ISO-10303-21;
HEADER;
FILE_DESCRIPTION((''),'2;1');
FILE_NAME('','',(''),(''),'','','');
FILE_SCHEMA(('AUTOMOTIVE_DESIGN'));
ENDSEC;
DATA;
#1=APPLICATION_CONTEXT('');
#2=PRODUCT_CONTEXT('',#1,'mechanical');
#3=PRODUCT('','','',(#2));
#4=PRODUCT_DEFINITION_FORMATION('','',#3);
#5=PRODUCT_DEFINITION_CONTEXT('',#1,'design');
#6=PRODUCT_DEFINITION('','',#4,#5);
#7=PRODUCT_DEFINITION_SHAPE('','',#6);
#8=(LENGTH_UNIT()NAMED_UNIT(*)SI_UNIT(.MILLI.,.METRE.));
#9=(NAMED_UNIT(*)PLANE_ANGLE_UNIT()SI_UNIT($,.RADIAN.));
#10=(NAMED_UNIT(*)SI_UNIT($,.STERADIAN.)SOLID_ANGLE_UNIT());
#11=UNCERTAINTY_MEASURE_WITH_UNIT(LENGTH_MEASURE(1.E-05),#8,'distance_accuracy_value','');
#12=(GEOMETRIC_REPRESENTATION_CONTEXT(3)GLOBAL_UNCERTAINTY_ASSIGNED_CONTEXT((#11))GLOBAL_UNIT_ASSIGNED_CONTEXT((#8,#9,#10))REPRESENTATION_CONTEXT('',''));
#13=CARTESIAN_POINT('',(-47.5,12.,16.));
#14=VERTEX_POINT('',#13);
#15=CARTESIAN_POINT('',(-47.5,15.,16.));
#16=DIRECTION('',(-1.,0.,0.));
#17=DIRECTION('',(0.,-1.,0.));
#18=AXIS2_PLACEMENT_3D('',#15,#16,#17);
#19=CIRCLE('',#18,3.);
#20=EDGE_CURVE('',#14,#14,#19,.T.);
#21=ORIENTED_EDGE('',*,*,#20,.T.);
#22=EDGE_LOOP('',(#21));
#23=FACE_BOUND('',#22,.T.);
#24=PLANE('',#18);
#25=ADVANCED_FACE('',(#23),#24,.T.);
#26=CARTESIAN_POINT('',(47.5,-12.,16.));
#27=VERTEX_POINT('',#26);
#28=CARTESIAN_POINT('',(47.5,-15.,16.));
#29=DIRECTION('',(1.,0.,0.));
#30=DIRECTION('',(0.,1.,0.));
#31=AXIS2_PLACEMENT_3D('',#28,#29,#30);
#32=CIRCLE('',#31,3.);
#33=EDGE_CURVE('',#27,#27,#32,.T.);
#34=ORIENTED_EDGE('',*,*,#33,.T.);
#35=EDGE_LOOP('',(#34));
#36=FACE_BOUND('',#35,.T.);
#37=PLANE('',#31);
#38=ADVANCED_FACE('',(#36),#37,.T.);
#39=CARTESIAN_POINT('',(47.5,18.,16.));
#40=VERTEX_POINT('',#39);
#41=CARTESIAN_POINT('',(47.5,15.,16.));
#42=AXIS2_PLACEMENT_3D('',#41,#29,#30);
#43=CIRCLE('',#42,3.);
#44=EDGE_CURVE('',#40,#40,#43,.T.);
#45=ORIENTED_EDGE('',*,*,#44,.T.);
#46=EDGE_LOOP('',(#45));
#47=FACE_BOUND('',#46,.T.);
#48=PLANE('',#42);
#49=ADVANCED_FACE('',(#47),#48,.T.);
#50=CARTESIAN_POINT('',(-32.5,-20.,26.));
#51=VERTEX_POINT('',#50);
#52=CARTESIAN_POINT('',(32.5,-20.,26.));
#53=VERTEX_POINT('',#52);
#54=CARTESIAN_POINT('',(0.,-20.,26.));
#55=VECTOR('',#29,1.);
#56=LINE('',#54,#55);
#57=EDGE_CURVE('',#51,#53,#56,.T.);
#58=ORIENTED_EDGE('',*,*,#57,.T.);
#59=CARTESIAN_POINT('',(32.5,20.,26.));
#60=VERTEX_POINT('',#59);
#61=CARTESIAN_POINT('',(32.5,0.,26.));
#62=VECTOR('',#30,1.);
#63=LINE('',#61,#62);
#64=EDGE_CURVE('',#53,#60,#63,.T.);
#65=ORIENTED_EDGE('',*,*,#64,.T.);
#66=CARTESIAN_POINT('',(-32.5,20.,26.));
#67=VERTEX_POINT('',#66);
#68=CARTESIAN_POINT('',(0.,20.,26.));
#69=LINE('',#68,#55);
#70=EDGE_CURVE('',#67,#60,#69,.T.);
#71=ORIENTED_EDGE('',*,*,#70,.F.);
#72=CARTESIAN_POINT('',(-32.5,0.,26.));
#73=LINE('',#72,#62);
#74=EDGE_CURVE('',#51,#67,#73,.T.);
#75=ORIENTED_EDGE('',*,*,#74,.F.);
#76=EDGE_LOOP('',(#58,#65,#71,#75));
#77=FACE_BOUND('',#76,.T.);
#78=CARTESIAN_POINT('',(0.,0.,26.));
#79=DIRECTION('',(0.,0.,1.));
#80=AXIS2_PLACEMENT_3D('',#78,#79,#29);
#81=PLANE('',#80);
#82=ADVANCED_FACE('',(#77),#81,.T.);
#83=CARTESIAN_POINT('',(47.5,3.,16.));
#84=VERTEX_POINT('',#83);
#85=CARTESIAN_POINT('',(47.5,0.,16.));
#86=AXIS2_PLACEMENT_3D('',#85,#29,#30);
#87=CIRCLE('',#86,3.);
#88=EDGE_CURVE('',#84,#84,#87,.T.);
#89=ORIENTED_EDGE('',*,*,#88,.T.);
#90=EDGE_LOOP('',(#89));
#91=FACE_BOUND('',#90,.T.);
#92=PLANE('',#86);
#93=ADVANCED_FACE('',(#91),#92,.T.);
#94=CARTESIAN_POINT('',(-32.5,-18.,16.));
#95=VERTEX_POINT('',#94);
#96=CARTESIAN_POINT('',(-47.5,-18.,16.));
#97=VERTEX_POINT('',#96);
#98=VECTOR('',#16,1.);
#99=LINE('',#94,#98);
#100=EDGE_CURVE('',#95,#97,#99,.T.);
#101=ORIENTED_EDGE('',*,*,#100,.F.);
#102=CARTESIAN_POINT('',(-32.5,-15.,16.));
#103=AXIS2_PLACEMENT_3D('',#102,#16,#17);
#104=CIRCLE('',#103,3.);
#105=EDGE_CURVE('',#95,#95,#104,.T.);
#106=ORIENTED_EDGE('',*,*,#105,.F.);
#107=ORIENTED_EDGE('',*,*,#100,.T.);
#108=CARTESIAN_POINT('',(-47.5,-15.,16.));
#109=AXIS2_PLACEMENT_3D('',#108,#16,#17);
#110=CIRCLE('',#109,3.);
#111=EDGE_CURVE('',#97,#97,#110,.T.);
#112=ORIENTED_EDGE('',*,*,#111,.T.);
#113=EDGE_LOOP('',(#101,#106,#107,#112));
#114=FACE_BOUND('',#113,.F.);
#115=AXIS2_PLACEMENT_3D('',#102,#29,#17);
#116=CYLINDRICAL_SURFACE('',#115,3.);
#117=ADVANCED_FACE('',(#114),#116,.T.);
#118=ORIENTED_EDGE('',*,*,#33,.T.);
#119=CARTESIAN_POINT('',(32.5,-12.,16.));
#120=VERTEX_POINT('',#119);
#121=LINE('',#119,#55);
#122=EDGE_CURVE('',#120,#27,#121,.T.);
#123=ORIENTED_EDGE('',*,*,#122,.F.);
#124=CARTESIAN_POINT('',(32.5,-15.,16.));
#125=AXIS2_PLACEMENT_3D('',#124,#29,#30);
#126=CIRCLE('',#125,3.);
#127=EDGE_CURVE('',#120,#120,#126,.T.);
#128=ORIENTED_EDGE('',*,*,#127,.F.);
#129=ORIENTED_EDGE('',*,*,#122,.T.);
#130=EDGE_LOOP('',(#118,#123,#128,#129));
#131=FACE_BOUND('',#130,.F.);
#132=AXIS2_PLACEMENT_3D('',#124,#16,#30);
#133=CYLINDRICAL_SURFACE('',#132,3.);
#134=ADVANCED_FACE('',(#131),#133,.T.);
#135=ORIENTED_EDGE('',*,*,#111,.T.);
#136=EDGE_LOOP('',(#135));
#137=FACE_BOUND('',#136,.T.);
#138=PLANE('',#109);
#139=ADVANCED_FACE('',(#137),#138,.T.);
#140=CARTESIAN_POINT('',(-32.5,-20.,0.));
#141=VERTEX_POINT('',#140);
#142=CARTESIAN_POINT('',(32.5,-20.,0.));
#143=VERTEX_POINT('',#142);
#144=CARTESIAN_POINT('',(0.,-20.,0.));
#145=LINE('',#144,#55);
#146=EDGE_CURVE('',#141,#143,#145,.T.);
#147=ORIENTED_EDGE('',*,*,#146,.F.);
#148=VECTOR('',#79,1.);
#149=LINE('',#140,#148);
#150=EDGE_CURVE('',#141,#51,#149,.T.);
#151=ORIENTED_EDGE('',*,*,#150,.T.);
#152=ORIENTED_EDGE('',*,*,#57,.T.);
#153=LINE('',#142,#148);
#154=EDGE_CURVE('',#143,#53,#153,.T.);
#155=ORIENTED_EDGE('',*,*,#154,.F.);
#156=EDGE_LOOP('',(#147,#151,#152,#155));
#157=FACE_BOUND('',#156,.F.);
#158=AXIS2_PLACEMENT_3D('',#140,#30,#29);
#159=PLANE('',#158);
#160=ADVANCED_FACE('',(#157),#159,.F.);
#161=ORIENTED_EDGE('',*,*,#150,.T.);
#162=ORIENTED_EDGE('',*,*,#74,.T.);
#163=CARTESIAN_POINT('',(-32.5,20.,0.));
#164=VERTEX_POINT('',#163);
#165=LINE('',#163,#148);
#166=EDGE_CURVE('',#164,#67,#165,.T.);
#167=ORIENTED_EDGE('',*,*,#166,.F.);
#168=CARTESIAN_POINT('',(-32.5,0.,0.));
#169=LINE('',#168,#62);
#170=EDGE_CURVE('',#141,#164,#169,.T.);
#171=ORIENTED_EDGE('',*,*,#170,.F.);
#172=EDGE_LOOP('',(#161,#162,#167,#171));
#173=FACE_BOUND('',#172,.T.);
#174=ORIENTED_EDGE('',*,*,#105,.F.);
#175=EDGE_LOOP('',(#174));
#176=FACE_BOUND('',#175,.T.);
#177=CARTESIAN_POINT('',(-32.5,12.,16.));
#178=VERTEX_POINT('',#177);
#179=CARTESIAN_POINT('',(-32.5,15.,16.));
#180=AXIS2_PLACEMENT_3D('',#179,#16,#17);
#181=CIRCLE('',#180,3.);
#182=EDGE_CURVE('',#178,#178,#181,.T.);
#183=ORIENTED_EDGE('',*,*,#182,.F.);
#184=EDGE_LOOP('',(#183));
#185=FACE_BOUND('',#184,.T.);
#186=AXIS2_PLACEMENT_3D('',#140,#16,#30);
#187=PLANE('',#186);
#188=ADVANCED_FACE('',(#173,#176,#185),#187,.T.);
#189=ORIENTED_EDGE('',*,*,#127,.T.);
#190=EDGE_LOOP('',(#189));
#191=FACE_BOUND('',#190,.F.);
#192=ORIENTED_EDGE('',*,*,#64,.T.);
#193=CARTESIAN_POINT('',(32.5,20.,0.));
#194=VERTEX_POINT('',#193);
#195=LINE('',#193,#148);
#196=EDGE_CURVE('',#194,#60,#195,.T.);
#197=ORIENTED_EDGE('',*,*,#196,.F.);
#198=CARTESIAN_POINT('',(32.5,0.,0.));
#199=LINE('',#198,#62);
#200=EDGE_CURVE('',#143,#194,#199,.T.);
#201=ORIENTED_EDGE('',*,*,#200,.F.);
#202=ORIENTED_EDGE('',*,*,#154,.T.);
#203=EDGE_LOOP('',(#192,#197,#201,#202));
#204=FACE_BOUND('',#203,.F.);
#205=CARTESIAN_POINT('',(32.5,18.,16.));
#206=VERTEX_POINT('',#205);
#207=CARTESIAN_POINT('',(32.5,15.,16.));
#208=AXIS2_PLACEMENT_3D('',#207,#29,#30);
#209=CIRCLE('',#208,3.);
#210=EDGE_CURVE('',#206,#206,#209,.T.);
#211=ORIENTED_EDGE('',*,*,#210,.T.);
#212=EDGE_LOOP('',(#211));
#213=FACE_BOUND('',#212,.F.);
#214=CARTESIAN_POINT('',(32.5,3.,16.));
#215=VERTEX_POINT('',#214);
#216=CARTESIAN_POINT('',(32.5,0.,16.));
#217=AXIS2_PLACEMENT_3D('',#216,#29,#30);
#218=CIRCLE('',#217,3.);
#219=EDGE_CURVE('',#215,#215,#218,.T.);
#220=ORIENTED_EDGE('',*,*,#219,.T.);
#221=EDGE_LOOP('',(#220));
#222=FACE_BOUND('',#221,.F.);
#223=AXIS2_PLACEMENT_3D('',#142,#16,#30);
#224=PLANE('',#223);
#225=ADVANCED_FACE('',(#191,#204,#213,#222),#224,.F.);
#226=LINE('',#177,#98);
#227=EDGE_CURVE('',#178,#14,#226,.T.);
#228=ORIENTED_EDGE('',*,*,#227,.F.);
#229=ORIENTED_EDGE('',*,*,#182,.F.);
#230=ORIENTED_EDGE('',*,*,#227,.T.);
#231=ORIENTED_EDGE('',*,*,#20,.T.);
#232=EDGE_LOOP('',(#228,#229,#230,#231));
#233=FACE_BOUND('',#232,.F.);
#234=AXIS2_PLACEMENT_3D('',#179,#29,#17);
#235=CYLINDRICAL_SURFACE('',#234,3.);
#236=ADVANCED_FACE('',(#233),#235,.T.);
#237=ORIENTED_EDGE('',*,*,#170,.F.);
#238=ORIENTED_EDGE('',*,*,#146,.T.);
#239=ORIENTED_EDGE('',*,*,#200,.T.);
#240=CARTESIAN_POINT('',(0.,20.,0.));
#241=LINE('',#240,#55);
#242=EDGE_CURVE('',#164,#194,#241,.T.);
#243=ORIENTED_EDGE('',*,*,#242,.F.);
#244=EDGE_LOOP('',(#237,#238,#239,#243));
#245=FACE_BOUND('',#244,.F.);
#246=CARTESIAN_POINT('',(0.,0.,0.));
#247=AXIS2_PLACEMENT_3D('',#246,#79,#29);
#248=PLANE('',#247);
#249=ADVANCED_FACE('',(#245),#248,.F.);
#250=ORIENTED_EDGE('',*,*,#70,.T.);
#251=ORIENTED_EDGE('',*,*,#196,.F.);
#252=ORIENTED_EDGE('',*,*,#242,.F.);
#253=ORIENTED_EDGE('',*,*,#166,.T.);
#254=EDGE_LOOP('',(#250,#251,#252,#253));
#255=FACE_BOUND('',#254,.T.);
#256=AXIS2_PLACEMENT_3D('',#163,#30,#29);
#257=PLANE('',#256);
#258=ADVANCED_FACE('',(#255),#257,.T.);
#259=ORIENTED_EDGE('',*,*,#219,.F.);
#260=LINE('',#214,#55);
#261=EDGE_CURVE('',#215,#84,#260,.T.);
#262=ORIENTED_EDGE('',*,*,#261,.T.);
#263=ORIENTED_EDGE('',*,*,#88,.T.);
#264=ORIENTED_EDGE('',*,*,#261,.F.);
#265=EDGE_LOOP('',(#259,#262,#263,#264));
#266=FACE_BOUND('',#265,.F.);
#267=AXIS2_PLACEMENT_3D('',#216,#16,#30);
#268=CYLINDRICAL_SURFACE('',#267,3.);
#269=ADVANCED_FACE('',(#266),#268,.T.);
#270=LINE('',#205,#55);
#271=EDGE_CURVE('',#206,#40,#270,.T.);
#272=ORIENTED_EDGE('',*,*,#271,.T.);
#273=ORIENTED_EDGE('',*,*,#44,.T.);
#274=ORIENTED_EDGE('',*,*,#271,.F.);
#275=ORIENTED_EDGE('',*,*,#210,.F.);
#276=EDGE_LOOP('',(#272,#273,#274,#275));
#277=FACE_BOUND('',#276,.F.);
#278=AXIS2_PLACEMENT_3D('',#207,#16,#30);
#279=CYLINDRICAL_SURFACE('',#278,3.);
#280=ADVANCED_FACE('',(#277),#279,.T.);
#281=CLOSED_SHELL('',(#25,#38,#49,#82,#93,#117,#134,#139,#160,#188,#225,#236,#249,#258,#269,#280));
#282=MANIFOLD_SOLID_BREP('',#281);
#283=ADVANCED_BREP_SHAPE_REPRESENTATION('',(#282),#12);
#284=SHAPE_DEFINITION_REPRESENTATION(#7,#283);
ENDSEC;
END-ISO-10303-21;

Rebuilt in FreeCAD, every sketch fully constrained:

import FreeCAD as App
import Part
import Sketcher


def add_polygon(sketch, points):
    """Adds a closed chain of lines whose ends are joined by coincident constraints."""
    first, n = sketch.GeometryCount, len(points)
    for a, b in zip(points, points[1:] + points[:1]):
        sketch.addGeometry(Part.LineSegment(App.Vector(*a, 0), App.Vector(*b, 0)), False)
    for i in range(n):
        sketch.addConstraint(Sketcher.Constraint("Coincident", first + i, 2, first + (i + 1) % n, 1))

doc = App.newDocument("Part")
params = doc.addObject("Spreadsheet::Sheet", "Params")
for row, (alias, value) in enumerate([
    ("sketch1_width", "65 mm"),
    ("sketch1_height", "40 mm"),
    ("pad1_length", "26 mm"),
    ("sketch2_diameter", "6 mm"),
    ("pad2_length", "15 mm"),
    ("sketch3_diameter", "6 mm"),
    ("pad3_length", "15 mm"),
], start=1):
    params.set(f"A{row}", alias)
    params.set(f"B{row}", "=" + value)
    params.setAlias(f"B{row}", alias)

body = doc.addObject("PartDesign::Body", "Body")

sketch1 = doc.addObject("Sketcher::SketchObject", "Sketch")
body.addObject(sketch1)
sketch1.AttachmentSupport = (doc.XY_Plane, [""])
sketch1.MapMode = "FlatFace"
add_polygon(sketch1, [(-32, 20), (-32, -20), (32, -20), (32, 20)])
sketch1.addConstraint([
    Sketcher.Constraint("Vertical", 0),
    Sketcher.Constraint("Horizontal", 1),
    Sketcher.Constraint("Vertical", 2),
    Sketcher.Constraint("Horizontal", 3),
    Sketcher.Constraint("Symmetric", 0, 2, 2, 2, -1, 1),
    Sketcher.Constraint("DistanceX", 1, 1, 1, 2, 65.0),
    Sketcher.Constraint("DistanceY", 0, 2, 0, 1, 40.0),
])
sketch1.setExpression("Constraints[9]", "Params.sketch1_width")
sketch1.setExpression("Constraints[10]", "Params.sketch1_height")
pad1 = doc.addObject("PartDesign::Pad", "Pad")
body.addObject(pad1)
pad1.Profile = sketch1
pad1.setExpression("Length", "Params.pad1_length")

sketch2 = doc.addObject("Sketcher::SketchObject", "Sketch001")
body.addObject(sketch2)
sketch2.AttachmentSupport = (doc.YZ_Plane, [""])
sketch2.MapMode = "FlatFace"
sketch2.AttachmentOffset = App.Placement(App.Vector(0, 0, 32.5), App.Rotation())
sketch2.addGeometry([
    Part.Circle(App.Vector(0, 16, 0), App.Vector(0, 0, 1), 3),
    Part.Circle(App.Vector(-15, 16, 0), App.Vector(0, 0, 1), 3),
    Part.Circle(App.Vector(15, 16, 0), App.Vector(0, 0, 1), 3),
], False)
sketch2.addConstraint([
    Sketcher.Constraint("Equal", 0, 1),
    Sketcher.Constraint("Equal", 1, 2),
    Sketcher.Constraint("Symmetric", 1, 3, 2, 3, -2),
    Sketcher.Constraint("PointOnObject", 0, 3, -2),
    Sketcher.Constraint("Horizontal", 0, 3, 1, 3),
    Sketcher.Constraint("Diameter", 0, 6.0),
    Sketcher.Constraint("DistanceY", -1, 1, 0, 3, 16.0),
    Sketcher.Constraint("DistanceX", 1, 3, -1, 1, 15.0),
])
sketch2.setExpression("Constraints[5]", "Params.sketch2_diameter")
pad2 = doc.addObject("PartDesign::Pad", "Pad001")
body.addObject(pad2)
pad2.Profile = sketch2
pad2.setExpression("Length", "Params.pad2_length")

sketch3 = doc.addObject("Sketcher::SketchObject", "Sketch002")
body.addObject(sketch3)
sketch3.AttachmentSupport = (doc.YZ_Plane, [""])
sketch3.MapMode = "FlatFace"
sketch3.AttachmentOffset = App.Placement(App.Vector(0, 0, -32.5), App.Rotation())
sketch3.addGeometry([
    Part.Circle(App.Vector(-15, 16, 0), App.Vector(0, 0, 1), 3),
    Part.Circle(App.Vector(15, 16, 0), App.Vector(0, 0, 1), 3),
], False)
sketch3.addConstraint([
    Sketcher.Constraint("Equal", 0, 1),
    Sketcher.Constraint("Symmetric", 0, 3, 1, 3, -2),
    Sketcher.Constraint("Diameter", 0, 6.0),
    Sketcher.Constraint("DistanceX", 0, 3, -1, 1, 15.0),
    Sketcher.Constraint("DistanceY", -1, 1, 0, 3, 16.0),
])
sketch3.setExpression("Constraints[2]", "Params.sketch3_diameter")
pad3 = doc.addObject("PartDesign::Pad", "Pad002")
body.addObject(pad3)
pad3.Profile = sketch3
pad3.setExpression("Length", "Params.pad3_length")
pad3.Reversed = True

doc.recompute()
